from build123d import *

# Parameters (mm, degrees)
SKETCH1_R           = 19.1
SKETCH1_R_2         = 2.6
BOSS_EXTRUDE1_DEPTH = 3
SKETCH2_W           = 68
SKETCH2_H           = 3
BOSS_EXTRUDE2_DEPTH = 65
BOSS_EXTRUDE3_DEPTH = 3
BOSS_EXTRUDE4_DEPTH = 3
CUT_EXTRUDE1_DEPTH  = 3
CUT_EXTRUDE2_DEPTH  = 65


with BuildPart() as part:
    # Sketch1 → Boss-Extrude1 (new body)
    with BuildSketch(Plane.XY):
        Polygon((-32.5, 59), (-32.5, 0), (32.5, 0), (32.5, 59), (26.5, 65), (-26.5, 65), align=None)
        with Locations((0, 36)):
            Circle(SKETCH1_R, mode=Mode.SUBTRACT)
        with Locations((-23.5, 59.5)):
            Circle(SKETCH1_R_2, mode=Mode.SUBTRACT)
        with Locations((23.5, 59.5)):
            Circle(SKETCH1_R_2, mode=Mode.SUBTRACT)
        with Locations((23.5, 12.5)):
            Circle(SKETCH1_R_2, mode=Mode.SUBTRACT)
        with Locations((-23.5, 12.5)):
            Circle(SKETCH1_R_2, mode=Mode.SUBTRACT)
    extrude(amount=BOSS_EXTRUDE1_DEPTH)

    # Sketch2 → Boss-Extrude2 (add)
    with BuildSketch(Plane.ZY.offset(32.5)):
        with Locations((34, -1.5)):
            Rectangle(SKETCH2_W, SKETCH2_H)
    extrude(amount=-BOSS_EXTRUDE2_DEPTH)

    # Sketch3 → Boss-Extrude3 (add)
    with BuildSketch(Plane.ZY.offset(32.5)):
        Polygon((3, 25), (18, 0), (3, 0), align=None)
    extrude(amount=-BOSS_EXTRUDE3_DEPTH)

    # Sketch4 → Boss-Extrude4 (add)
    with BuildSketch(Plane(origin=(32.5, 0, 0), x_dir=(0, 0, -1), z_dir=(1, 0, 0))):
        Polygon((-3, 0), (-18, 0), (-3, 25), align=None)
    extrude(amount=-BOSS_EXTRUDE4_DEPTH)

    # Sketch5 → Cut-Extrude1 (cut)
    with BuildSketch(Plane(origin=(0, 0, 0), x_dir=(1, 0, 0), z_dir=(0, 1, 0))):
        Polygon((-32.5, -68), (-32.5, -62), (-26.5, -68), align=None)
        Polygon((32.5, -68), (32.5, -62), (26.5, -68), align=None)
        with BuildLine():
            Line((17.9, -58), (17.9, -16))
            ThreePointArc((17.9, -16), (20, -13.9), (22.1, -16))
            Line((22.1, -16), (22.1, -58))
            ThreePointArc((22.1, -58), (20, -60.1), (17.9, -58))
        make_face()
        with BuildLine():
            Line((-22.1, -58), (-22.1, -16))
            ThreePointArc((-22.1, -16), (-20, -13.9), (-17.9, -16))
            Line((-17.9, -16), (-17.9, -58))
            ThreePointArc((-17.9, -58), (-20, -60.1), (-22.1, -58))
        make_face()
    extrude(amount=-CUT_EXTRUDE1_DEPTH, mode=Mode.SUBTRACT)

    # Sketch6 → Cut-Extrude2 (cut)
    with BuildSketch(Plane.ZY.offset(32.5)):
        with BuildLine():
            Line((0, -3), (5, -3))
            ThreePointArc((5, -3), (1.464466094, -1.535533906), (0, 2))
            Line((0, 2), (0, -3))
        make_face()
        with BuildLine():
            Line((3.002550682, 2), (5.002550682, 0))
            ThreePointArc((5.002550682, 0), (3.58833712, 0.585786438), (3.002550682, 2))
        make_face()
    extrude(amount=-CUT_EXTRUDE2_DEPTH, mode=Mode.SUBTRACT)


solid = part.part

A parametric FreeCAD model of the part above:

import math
import FreeCAD as App
import Part
import Sketcher

V = App.Vector


def add_polygon(sketch, points):
    """Adds a closed chain of lines whose ends are joined by coincident constraints."""
    first, n = sketch.GeometryCount, len(points)
    for a, b in zip(points, points[1:] + points[:1]):
        sketch.addGeometry(Part.LineSegment(App.Vector(*a, 0), App.Vector(*b, 0)), False)
    for i in range(n):
        sketch.addConstraint(Sketcher.Constraint("Coincident", first + i, 2, first + (i + 1) % n, 1))

doc = App.newDocument("Part")
body = doc.addObject("PartDesign::Body", "Body")

sketch1 = body.newObject("Sketcher::SketchObject", "Sketch")
sketch1.AttachmentSupport = (doc.getObject("XY_Plane"), [""])
sketch1.MapMode = "FlatFace"
add_polygon(sketch1, [(-32.5, 59), (-32.5, 0), (32.5, 0), (32.5, 59), (26.5, 65), (-26.5, 65)])
sketch1.addGeometry(Part.Circle(V(-23.5, 12.5, 0), V(0, 0, 1), 2.6), False)
sketch1.addGeometry(Part.Circle(V(23.5, 12.5, 0), V(0, 0, 1), 2.6), False)
sketch1.addGeometry(Part.Circle(V(-23.5, 59.5, 0), V(0, 0, 1), 2.6), False)
sketch1.addGeometry(Part.Circle(V(0, 36, 0), V(0, 0, 1), 19.1), False)
sketch1.addGeometry(Part.Circle(V(23.5, 59.5, 0), V(0, 0, 1), 2.6), False)
sketch1.addConstraint(Sketcher.Constraint("Vertical", 0))
sketch1.addConstraint(Sketcher.Constraint("Horizontal", 1))
sketch1.addConstraint(Sketcher.Constraint("Vertical", 2))
sketch1.addConstraint(Sketcher.Constraint("Horizontal", 4))
sketch1.addConstraint(Sketcher.Constraint("Equal", 6, 7))
sketch1.addConstraint(Sketcher.Constraint("Equal", 7, 8))
sketch1.addConstraint(Sketcher.Constraint("Equal", 8, 10))
sketch1.addConstraint(Sketcher.Constraint("Symmetric", 0, 2, 1, 2, -1, 1))
sketch1.addConstraint(Sketcher.Constraint("Symmetric", 6, 3, 7, 3, -2))
sketch1.addConstraint(Sketcher.Constraint("Symmetric", 8, 3, 10, 3, -2))
sketch1.addConstraint(Sketcher.Constraint("PointOnObject", 9, 3, -2))
sketch1.addConstraint(Sketcher.Constraint("Perpendicular", 3, 5))
sketch1.addConstraint(Sketcher.Constraint("Horizontal", 2, 2, 5, 2))
sketch1.addConstraint(Sketcher.Constraint("Vertical", 6, 3, 8, 3))
sketch1.addConstraint(Sketcher.Constraint("Equal", 3, 5))
sketch1.addConstraint(Sketcher.Constraint("Diameter", 6, 5.2))
sketch1.addConstraint(Sketcher.Constraint("Diameter", 9, 38.2))
sketch1.addConstraint(Sketcher.Constraint("DistanceX", 1, 1, 1, 2, 65.0))
sketch1.addConstraint(Sketcher.Constraint("DistanceX", 4, 2, 4, 1, 53.0))
sketch1.addConstraint(Sketcher.Constraint("DistanceY", 0, 2, 0, 1, 59.0))
sketch1.addConstraint(Sketcher.Constraint("DistanceY", -1, 1, 9, 3, 36.0))
sketch1.addConstraint(Sketcher.Constraint("DistanceX", 6, 3, 7, 3, 47.0))
sketch1.addConstraint(Sketcher.Constraint("DistanceY", 6, 3, 8, 3, 47.0))
sketch1.addConstraint(Sketcher.Constraint("DistanceY", -1, 1, 6, 3, 12.5))
pad1 = body.newObject("PartDesign::Pad", "Pad")
pad1.Profile = sketch1
pad1.Length = 3

sketch2 = body.newObject("Sketcher::SketchObject", "Sketch001")
sketch2.AttachmentSupport = (doc.getObject("YZ_Plane"), [""])
sketch2.MapMode = "FlatFace"
sketch2.AttachmentOffset = App.Placement(V(0, 0, -32.5), App.Rotation())
add_polygon(sketch2, [(0, 0), (-3, 0), (-3, 68), (0, 68)])
sketch2.addConstraint(Sketcher.Constraint("Horizontal", 0))
sketch2.addConstraint(Sketcher.Constraint("Vertical", 1))
sketch2.addConstraint(Sketcher.Constraint("Horizontal", 2))
sketch2.addConstraint(Sketcher.Constraint("Vertical", 3))
sketch2.addConstraint(Sketcher.Constraint("Coincident", 3, 2, -1, 1))
sketch2.addConstraint(Sketcher.Constraint("DistanceX", 0, 2, 0, 1, 3.0))
sketch2.addConstraint(Sketcher.Constraint("DistanceY", 1, 1, 1, 2, 68.0))
pad2 = body.newObject("PartDesign::Pad", "Pad001")
pad2.Profile = sketch2
pad2.Length = 65

sketch3 = body.newObject("Sketcher::SketchObject", "Sketch002")
sketch3.AttachmentSupport = (doc.getObject("YZ_Plane"), [""])
sketch3.MapMode = "FlatFace"
sketch3.AttachmentOffset = App.Placement(V(0, 0, -32.5), App.Rotation())
add_polygon(sketch3, [(0, 18), (25, 3), (0, 3)])
sketch3.addConstraint(Sketcher.Constraint("Horizontal", 1))
sketch3.addConstraint(Sketcher.Constraint("Vertical", 2))
sketch3.addConstraint(Sketcher.Constraint("PointOnObject", 1, 2, -2))
sketch3.addConstraint(Sketcher.Constraint("DistanceX", 1, 2, 1, 1, 25.0))
sketch3.addConstraint(Sketcher.Constraint("DistanceY", 2, 1, 2, 2, 15.0))
sketch3.addConstraint(Sketcher.Constraint("DistanceY", -1, 1, 0, 2, 3.0))
pad3 = body.newObject("PartDesign::Pad", "Pad002")
pad3.Profile = sketch3
pad3.Length = 3

sketch4 = body.newObject("Sketcher::SketchObject", "Sketch003")
sketch4.AttachmentSupport = (doc.getObject("YZ_Plane"), [""])
sketch4.MapMode = "FlatFace"
sketch4.AttachmentOffset = App.Placement(V(0, 0, 32.5), App.Rotation())
add_polygon(sketch4, [(0, 18), (0, 3), (25, 3)])
sketch4.addConstraint(Sketcher.Constraint("Vertical", 0))
sketch4.addConstraint(Sketcher.Constraint("Horizontal", 1))
sketch4.addConstraint(Sketcher.Constraint("PointOnObject", 0, 2, -2))
sketch4.addConstraint(Sketcher.Constraint("DistanceX", 1, 1, 1, 2, 25.0))
sketch4.addConstraint(Sketcher.Constraint("DistanceY", 0, 2, 0, 1, 15.0))
sketch4.addConstraint(Sketcher.Constraint("DistanceY", -1, 1, 0, 2, 3.0))
pad4 = body.newObject("PartDesign::Pad", "Pad003")
pad4.Profile = sketch4
pad4.Length = 3
pad4.Reversed = True

sketch5 = body.newObject("Sketcher::SketchObject", "Sketch004")
sketch5.AttachmentSupport = (doc.getObject("XZ_Plane"), [""])
sketch5.MapMode = "FlatFace"
add_polygon(sketch5, [(-32.5, 62), (-32.5, 68), (-26.5, 68)])
add_polygon(sketch5, [(32.5, 68), (32.5, 62), (26.5, 68)])
sketch5.addGeometry(Part.LineSegment(V(17.9, 16, 0), V(17.9, 58, 0)), False)
sketch5.addGeometry(Part.ArcOfCircle(Part.Circle(V(20, 58, 0), V(0, 0, 1), 2.1), math.radians(0), math.radians(180)), False)
sketch5.addGeometry(Part.LineSegment(V(22.1, 58, 0), V(22.1, 16, 0)), False)
sketch5.addGeometry(Part.ArcOfCircle(Part.Circle(V(20, 16, 0), V(0, 0, 1), 2.1), math.radians(180), math.radians(360)), False)
sketch5.addGeometry(Part.LineSegment(V(-22.1, 16, 0), V(-22.1, 58, 0)), False)
sketch5.addGeometry(Part.ArcOfCircle(Part.Circle(V(-20, 58, 0), V(0, 0, 1), 2.1), math.radians(0), math.radians(180)), False)
sketch5.addGeometry(Part.LineSegment(V(-17.9, 58, 0), V(-17.9, 16, 0)), False)
sketch5.addGeometry(Part.ArcOfCircle(Part.Circle(V(-20, 16, 0), V(0, 0, 1), 2.1), math.radians(180), math.radians(360)), False)
sketch5.addConstraint(Sketcher.Constraint("Tangent", 6, 2, 7, 2))
sketch5.addConstraint(Sketcher.Constraint("Tangent", 7, 1, 8, 1))
sketch5.addConstraint(Sketcher.Constraint("Tangent", 8, 2, 9, 2))
sketch5.addConstraint(Sketcher.Constraint("Tangent", 9, 1, 6, 1))
sketch5.addConstraint(Sketcher.Constraint("Tangent", 10, 2, 11, 2))
sketch5.addConstraint(Sketcher.Constraint("Tangent", 11, 1, 12, 1))
sketch5.addConstraint(Sketcher.Constraint("Tangent", 12, 2, 13, 2))
sketch5.addConstraint(Sketcher.Constraint("Tangent", 13, 1, 10, 1))
sketch5.addConstraint(Sketcher.Constraint("Vertical", 0))
sketch5.addConstraint(Sketcher.Constraint("Horizontal", 1))
sketch5.addConstraint(Sketcher.Constraint("Vertical", 3))
sketch5.addConstraint(Sketcher.Constraint("Horizontal", 5))
sketch5.addConstraint(Sketcher.Constraint("Vertical", 6))
sketch5.addConstraint(Sketcher.Constraint("Vertical", 8))
sketch5.addConstraint(Sketcher.Constraint("Vertical", 10))
sketch5.addConstraint(Sketcher.Constraint("Vertical", 12))
sketch5.addConstraint(Sketcher.Constraint("Equal", 9, 11))
sketch5.addConstraint(Sketcher.Constraint("Symmetric", 7, 3, 11, 3, -2))
sketch5.addConstraint(Sketcher.Constraint("Symmetric", 2, 2, 3, 2, -2))
sketch5.addConstraint(Sketcher.Constraint("Symmetric", 1, 2, 4, 2, -2))
sketch5.addConstraint(Sketcher.Constraint("Perpendicular", 2, 4))
sketch5.addConstraint(Sketcher.Constraint("Horizontal", 9, 3, 13, 3))
sketch5.addConstraint(Sketcher.Constraint("Radius", 7, 2.1))
sketch5.addConstraint(Sketcher.Constraint("DistanceX", 1, 1, 1, 2, 6.0))
sketch5.addConstraint(Sketcher.Constraint("DistanceY", 6, 1, 6, 2, 42.0))
sketch5.addConstraint(Sketcher.Constraint("DistanceX", -1, 1, 7, 3, 20.0))
sketch5.addConstraint(Sketcher.Constraint("DistanceY", -1, 1, 7, 3, 58.0))
sketch5.addConstraint(Sketcher.Constraint("DistanceY", -1, 1, 0, 2, 68.0))
sketch5.addConstraint(Sketcher.Constraint("DistanceX", 1, 2, 3, 2, 59.0))
pocket1 = body.newObject("PartDesign::Pocket", "Pocket")
pocket1.Profile = sketch5
pocket1.Length = 3
pocket1.Reversed = True

sketch6 = body.newObject("Sketcher::SketchObject", "Sketch005")
sketch6.AttachmentSupport = (doc.getObject("YZ_Plane"), [""])
sketch6.MapMode = "FlatFace"
sketch6.AttachmentOffset = App.Placement(V(0, 0, -32.5), App.Rotation())
sketch6.addGeometry(Part.LineSegment(V(-3, 0, 0), V(-3, 5, 0)), False)
sketch6.addGeometry(Part.ArcOfCircle(Part.Circle(V(2, 5, 0), V(0, 0, 1), 5), math.radians(180), math.radians(270)), False)
sketch6.addGeometry(Part.LineSegment(V(2, 0, 0), V(-3, 0, 0)), False)
sketch6.addGeometry(Part.LineSegment(V(0, 5, 0), V(2, 3, 0)), False)
sketch6.addGeometry(Part.ArcOfCircle(Part.Circle(V(2, 5, 0), V(0, 0, 1), 2), math.radians(-180), math.radians(-90)), False)
sketch6.addConstraint(Sketcher.Constraint("Tangent", 0, 2, 1, 1))
sketch6.addConstraint(Sketcher.Constraint("Tangent", 1, 2, 2, 1))
sketch6.addConstraint(Sketcher.Constraint("Coincident", 2, 2, 0, 1))
sketch6.addConstraint(Sketcher.Constraint("Coincident", 3, 1, 4, 1))
sketch6.addConstraint(Sketcher.Constraint("Coincident", 4, 2, 3, 2))
sketch6.addConstraint(Sketcher.Constraint("Vertical", 0))
sketch6.addConstraint(Sketcher.Constraint("Horizontal", 2))
sketch6.addConstraint(Sketcher.Constraint("PointOnObject", 1, 2, -1))
sketch6.addConstraint(Sketcher.Constraint("PointOnObject", 3, 1, -2))
sketch6.addConstraint(Sketcher.Constraint("Horizontal", 4, 3, 3, 1))
sketch6.addConstraint(Sketcher.Constraint("Vertical", 1, 3, 4, 3))
sketch6.addConstraint(Sketcher.Constraint("Vertical", 1, 2, 4, 2))
sketch6.addConstraint(Sketcher.Constraint("Radius", 1, 5.0))
sketch6.addConstraint(Sketcher.Constraint("Radius", 4, 2.0))
sketch6.addConstraint(Sketcher.Constraint("DistanceY", -1, 1, 4, 3, 5.002551))
pocket2 = body.newObject("PartDesign::Pocket", "Pocket001")
pocket2.Profile = sketch6
pocket2.Length = 65
pocket2.Reversed = True

doc.recompute()
